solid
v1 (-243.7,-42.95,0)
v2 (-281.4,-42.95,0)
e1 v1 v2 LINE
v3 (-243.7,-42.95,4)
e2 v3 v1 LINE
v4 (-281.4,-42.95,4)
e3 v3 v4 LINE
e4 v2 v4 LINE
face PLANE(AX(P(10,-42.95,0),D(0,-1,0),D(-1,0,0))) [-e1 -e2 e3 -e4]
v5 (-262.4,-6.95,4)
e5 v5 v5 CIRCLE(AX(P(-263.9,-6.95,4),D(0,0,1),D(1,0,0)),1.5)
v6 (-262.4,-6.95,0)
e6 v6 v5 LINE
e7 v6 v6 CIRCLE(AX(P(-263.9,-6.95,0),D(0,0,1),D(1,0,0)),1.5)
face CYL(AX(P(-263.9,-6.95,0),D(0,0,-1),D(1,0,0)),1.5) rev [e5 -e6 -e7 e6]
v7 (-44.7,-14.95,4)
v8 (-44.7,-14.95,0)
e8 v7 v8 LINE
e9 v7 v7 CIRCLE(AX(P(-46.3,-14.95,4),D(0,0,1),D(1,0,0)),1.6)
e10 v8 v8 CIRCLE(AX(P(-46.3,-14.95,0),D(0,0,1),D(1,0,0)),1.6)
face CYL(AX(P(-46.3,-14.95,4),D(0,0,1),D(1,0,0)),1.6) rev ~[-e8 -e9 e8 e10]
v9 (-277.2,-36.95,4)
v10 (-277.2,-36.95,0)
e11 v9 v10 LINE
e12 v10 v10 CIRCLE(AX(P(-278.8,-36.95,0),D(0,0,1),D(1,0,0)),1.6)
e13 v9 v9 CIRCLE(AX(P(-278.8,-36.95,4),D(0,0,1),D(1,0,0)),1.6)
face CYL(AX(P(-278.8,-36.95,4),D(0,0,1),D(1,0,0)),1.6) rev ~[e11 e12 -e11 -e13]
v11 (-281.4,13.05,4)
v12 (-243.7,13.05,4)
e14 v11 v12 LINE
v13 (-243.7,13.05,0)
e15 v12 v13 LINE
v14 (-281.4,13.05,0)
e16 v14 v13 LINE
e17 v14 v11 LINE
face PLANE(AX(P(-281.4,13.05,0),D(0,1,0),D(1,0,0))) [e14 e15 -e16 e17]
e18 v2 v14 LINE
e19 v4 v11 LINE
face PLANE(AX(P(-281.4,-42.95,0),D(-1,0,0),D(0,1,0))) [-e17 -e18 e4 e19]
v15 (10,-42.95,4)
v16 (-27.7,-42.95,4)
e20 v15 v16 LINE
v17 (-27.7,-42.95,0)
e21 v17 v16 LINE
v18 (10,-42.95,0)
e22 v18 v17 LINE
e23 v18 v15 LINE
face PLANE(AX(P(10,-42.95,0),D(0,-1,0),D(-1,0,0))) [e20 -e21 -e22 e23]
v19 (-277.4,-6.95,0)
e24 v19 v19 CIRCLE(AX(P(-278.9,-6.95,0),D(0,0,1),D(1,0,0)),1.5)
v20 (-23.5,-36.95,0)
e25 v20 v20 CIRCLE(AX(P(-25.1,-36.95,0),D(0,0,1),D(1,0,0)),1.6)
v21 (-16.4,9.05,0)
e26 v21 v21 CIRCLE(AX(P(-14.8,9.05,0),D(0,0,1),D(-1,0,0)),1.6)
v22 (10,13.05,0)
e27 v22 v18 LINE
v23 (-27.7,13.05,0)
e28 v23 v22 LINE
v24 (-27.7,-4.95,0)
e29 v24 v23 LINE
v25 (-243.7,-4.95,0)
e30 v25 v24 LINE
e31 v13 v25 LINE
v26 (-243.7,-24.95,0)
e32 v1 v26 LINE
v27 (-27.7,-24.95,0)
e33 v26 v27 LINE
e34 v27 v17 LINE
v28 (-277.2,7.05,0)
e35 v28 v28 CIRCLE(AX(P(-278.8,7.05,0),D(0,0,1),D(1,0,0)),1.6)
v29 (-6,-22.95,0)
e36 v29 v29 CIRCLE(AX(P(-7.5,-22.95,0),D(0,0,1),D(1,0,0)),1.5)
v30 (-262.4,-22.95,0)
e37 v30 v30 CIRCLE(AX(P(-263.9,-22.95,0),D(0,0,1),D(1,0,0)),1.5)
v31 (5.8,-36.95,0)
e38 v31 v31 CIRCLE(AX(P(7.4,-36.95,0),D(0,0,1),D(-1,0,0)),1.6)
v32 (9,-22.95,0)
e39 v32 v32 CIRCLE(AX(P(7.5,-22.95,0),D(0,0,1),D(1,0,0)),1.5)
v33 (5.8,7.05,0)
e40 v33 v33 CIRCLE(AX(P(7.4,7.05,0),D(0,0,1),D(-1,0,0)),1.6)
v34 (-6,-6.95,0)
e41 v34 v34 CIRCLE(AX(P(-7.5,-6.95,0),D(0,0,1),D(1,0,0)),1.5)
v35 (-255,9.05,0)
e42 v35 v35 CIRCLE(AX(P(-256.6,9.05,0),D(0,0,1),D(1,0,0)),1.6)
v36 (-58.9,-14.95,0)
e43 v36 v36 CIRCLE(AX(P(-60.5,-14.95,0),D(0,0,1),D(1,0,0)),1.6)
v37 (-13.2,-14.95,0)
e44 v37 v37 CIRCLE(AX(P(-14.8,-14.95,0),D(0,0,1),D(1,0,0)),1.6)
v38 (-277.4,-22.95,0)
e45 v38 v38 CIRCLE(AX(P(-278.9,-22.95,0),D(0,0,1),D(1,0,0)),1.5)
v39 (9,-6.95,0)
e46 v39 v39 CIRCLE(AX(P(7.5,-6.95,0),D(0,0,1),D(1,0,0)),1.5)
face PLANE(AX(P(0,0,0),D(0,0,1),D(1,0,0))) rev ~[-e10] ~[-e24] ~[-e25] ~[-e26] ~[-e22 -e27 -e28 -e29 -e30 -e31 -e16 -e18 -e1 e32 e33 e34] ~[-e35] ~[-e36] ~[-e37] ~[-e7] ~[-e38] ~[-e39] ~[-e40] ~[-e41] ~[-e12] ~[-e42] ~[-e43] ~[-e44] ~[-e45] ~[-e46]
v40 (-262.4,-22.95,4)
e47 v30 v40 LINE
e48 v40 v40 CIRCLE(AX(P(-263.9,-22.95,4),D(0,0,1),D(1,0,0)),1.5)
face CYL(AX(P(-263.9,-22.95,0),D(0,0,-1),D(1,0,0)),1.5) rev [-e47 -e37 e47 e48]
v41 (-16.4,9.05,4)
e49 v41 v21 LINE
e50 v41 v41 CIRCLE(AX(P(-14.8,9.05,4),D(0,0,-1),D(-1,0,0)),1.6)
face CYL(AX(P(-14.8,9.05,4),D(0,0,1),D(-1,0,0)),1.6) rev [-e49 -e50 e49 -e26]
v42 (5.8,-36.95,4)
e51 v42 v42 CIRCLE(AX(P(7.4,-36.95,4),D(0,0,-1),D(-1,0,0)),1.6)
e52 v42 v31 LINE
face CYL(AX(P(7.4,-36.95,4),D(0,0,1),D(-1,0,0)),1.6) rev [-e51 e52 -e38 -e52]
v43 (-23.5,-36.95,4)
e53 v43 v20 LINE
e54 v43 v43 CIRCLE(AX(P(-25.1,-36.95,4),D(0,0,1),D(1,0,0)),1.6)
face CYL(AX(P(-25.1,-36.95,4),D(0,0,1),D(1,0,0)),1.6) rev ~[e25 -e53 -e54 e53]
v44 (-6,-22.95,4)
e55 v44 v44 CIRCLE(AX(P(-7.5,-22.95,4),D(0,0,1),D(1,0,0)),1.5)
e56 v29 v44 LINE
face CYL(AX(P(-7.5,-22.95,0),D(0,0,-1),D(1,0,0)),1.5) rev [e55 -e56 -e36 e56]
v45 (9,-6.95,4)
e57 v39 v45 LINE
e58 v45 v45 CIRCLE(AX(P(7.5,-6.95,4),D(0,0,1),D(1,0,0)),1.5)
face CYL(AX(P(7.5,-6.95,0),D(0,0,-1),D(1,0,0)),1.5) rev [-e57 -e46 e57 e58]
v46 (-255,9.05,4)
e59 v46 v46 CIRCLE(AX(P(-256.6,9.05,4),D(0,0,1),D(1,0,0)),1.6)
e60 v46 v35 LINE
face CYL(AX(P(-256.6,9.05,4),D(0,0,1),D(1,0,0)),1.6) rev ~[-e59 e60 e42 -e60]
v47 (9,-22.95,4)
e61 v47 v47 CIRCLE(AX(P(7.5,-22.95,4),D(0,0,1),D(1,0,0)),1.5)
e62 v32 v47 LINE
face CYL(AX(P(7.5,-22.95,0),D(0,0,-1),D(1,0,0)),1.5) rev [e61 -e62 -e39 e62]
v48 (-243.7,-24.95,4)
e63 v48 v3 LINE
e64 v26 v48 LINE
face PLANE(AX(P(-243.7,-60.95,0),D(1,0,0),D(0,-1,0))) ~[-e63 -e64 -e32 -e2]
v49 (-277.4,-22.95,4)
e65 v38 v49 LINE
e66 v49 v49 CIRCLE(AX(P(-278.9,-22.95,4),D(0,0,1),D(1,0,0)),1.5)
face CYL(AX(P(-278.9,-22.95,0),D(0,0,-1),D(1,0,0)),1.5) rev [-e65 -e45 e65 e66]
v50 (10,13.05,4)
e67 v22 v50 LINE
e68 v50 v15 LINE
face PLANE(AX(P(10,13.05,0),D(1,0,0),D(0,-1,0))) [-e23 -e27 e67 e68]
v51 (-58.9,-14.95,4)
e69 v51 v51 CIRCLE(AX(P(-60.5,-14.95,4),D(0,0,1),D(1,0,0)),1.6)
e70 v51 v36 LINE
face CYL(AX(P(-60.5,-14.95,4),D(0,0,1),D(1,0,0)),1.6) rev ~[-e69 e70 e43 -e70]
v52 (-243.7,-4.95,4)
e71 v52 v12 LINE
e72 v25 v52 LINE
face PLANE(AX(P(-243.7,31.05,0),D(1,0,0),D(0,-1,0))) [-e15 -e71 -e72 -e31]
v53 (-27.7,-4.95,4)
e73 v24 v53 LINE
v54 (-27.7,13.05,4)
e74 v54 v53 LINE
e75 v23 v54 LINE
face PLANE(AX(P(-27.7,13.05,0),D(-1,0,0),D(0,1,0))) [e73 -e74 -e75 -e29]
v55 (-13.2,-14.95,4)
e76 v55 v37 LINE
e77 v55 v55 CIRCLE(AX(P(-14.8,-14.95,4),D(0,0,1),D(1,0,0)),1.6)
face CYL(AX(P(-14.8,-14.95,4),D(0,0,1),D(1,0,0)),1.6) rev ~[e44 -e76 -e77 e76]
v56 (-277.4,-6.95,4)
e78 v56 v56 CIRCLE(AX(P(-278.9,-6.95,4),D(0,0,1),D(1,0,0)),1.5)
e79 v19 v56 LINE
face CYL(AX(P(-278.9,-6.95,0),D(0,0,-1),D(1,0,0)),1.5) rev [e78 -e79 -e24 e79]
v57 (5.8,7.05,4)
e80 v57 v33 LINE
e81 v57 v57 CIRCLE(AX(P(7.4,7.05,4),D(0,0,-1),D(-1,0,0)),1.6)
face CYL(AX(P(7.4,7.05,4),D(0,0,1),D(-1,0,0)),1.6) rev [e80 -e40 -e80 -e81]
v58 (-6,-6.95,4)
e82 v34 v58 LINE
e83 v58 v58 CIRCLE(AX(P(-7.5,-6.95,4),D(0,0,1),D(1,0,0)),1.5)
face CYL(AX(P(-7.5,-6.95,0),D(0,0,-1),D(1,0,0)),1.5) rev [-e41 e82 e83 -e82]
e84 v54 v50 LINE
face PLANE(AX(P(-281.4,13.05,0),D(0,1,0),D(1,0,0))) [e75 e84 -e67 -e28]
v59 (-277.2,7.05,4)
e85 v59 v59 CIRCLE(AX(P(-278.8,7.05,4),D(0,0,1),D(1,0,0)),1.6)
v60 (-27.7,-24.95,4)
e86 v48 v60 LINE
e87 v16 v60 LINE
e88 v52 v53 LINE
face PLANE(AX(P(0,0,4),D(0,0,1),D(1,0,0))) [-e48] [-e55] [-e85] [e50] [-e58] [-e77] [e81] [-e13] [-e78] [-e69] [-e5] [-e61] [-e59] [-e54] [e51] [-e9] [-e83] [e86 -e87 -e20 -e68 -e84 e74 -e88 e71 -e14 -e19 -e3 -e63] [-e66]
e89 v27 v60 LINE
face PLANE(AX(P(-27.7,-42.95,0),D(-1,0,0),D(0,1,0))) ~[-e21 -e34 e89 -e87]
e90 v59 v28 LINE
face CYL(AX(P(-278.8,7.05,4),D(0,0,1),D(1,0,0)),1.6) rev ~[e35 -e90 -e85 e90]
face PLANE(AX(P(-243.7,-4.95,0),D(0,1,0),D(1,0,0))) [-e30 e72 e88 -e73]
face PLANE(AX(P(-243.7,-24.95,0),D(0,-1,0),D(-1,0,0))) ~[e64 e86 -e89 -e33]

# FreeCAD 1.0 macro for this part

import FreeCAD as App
import Part
import Sketcher
from FreeCAD import Vector
Q = App.Units.Quantity


def add_polygon(sketch, points):
    """Adds a closed chain of lines whose ends are joined by coincident constraints."""
    first, n = sketch.GeometryCount, len(points)
    for a, b in zip(points, points[1:] + points[:1]):
        sketch.addGeometry(Part.LineSegment(App.Vector(*a, 0), App.Vector(*b, 0)), False)
    for i in range(n):
        sketch.addConstraint(Sketcher.Constraint("Coincident", first + i, 2, first + (i + 1) % n, 1))

doc = App.newDocument("Part")
body = doc.addObject("PartDesign::Body", "Body")

# Sketch on XY plane
sketch1 = doc.addObject("Sketcher::SketchObject", "Sketch")
body.addObject(sketch1)
sketch1.AttachmentSupport = (doc.XY_Plane, [""])
sketch1.MapMode = "FlatFace"
add_polygon(sketch1, [(10, 13.05), (-281.4, 13.05), (-281.4, -42.95), (10, -42.95)])  # lines 0-3
sketch1.addGeometry(Part.Circle(Vector(-278.9, -22.95, 0), Vector(0, 0, 1), 1.5), False)  # 4
sketch1.addGeometry(Part.Circle(Vector(-263.9, -22.95, 0), Vector(0, 0, 1), 1.5), False)  # 5
sketch1.addGeometry(Part.Circle(Vector(-7.5, -22.95, 0), Vector(0, 0, 1), 1.5), False)  # 6
sketch1.addGeometry(Part.Circle(Vector(7.5, -22.95, 0), Vector(0, 0, 1), 1.5), False)  # 7
sketch1.addGeometry(Part.Circle(Vector(-278.9, -6.95, 0), Vector(0, 0, 1), 1.5), False)  # 8
sketch1.addGeometry(Part.Circle(Vector(-263.9, -6.95, 0), Vector(0, 0, 1), 1.5), False)  # 9
sketch1.addGeometry(Part.Circle(Vector(-7.5, -6.95, 0), Vector(0, 0, 1), 1.5), False)  # 10
sketch1.addGeometry(Part.Circle(Vector(7.5, -6.95, 0), Vector(0, 0, 1), 1.5), False)  # 11
sketch1.addConstraint([
    Sketcher.Constraint("Horizontal", 0),
    Sketcher.Constraint("Vertical", 1),
    Sketcher.Constraint("Horizontal", 2),
    Sketcher.Constraint("Vertical", 3),
    Sketcher.Constraint("Equal", 4, 5),
    Sketcher.Constraint("Equal", 5, 6),
    Sketcher.Constraint("Equal", 6, 7),
    Sketcher.Constraint("Equal", 7, 8),
    Sketcher.Constraint("Equal", 8, 9),
    Sketcher.Constraint("Equal", 9, 10),
    Sketcher.Constraint("Equal", 10, 11),
    Sketcher.Constraint("Symmetric", 6, 3, 7, 3, -2),
    Sketcher.Constraint("Symmetric", 10, 3, 11, 3, -2),
    Sketcher.Constraint("Horizontal", 4, 3, 5, 3),
    Sketcher.Constraint("Horizontal", 5, 3, 6, 3),
    Sketcher.Constraint("Horizontal", 8, 3, 9, 3),
    Sketcher.Constraint("Horizontal", 9, 3, 10, 3),
    Sketcher.Constraint("Vertical", 4, 3, 8, 3),
    Sketcher.Constraint("Vertical", 5, 3, 9, 3),
    Sketcher.Constraint("Vertical", 6, 3, 10, 3),
    Sketcher.Constraint("Diameter", 4, Q("3 mm")),
    Sketcher.Constraint("DistanceX", 0, 2, 0, 1, Q("291.4 mm")),
    Sketcher.Constraint("DistanceY", 8, 3, 0, 2, Q("20 mm")),
    Sketcher.Constraint("DistanceY", 1, 2, 4, 3, Q("20 mm")),
    Sketcher.Constraint("DistanceX", 0, 2, 8, 3, Q("2.5 mm")),
    Sketcher.Constraint("DistanceX", 7, 3, 2, 2, Q("2.5 mm")),
    Sketcher.Constraint("DistanceY", 1, 2, 1, 1, Q("56 mm")),
    Sketcher.Constraint("DistanceX", -1, 1, 2, 2, Q("10 mm")),
    Sketcher.Constraint("DistanceX", 4, 3, 5, 3, Q("15 mm")),
    Sketcher.Constraint("DistanceY", 4, 3, -1, 1, Q("22.95 mm")),
])
pad1 = doc.addObject("PartDesign::Pad", "Pad")
body.addObject(pad1)
pad1.Profile = sketch1
pad1.Length = 4

# Sketch on XY plane
sketch2 = doc.addObject("Sketcher::SketchObject", "Sketch001")
body.addObject(sketch2)
sketch2.AttachmentSupport = (doc.XY_Plane, [""])
sketch2.MapMode = "FlatFace"
add_polygon(sketch2, [(-243.7, 31.05), (-27.7, 31.05), (-27.7, -4.95), (-243.7, -4.95)])  # lines 0-3
sketch2.addConstraint([
    Sketcher.Constraint("Horizontal", 0),
    Sketcher.Constraint("Vertical", 1),
    Sketcher.Constraint("Horizontal", 2),
    Sketcher.Constraint("Vertical", 3),
    Sketcher.Constraint("DistanceX", 0, 1, 0, 2, Q("216 mm")),
    Sketcher.Constraint("DistanceY", 1, 2, 1, 1, Q("36 mm")),
    Sketcher.Constraint("DistanceX", 0, 2, -1, 1, Q("27.7 mm")),
    Sketcher.Constraint("DistanceY", -1, 1, 0, 2, Q("31.05 mm")),
])
pocket1 = doc.addObject("PartDesign::Pocket", "Pocket")
body.addObject(pocket1)
pocket1.Profile = sketch2
pocket1.Length = 4
pocket1.Reversed = True
doc.recompute()

datumplane = doc.addObject("PartDesign::Plane", "DatumPlane")
body.addObject(datumplane)
datumplane.AttachmentSupport = (doc.XZ_Plane, [""])
datumplane.MapMode = "FlatFace"
datumplane.AttachmentOffset = App.Placement(Vector(0, 0, 14.95), App.Rotation())
mirrored = doc.addObject("PartDesign::Mirrored", "Mirrored")
body.addObject(mirrored)
mirrored.Originals = [pocket1]
mirrored.MirrorPlane = (datumplane, [""])
body.Tip = mirrored

# Sketch on XY plane
sketch3 = doc.addObject("Sketcher::SketchObject", "Sketch002")
body.addObject(sketch3)
sketch3.AttachmentSupport = (doc.XY_Plane, [""])
sketch3.MapMode = "FlatFace"
sketch3.AttachmentOffset = App.Placement(Vector(0, 0, 4), App.Rotation())
sketch3.addGeometry([
    Part.Circle(Vector(-278.8, -36.95, 0), Vector(0, 0, 1), 1.6),
    Part.Circle(Vector(-278.8, 7.05, 0), Vector(0, 0, 1), 1.6),
], False)
sketch3.addConstraint([
    Sketcher.Constraint("Equal", 0, 1),
    Sketcher.Constraint("Vertical", 0, 3, 1, 3),
    Sketcher.Constraint("Diameter", 0, Q("3.2 mm")),
    Sketcher.Constraint("DistanceY", 0, 3, 1, 3, Q("44 mm")),
    Sketcher.Constraint("DistanceX", 0, 3, -1, 1, Q("278.8 mm")),
    Sketcher.Constraint("DistanceY", 0, 3, -1, 1, Q("36.95 mm")),
])
pocket2 = doc.addObject("PartDesign::Pocket", "Pocket001")
body.addObject(pocket2)
pocket2.Profile = sketch3
pocket2.Length = 10
doc.recompute()

datumplane2 = doc.addObject("PartDesign::Plane", "DatumPlane001")
body.addObject(datumplane2)
datumplane2.AttachmentSupport = (doc.YZ_Plane, [""])
datumplane2.MapMode = "FlatFace"
datumplane2.AttachmentOffset = App.Placement(Vector(0, 0, -135.7), App.Rotation())
mirrored2 = doc.addObject("PartDesign::Mirrored", "Mirrored001")
body.addObject(mirrored2)
mirrored2.Originals = [pocket2]
mirrored2.MirrorPlane = (datumplane2, [""])
body.Tip = mirrored2

# Sketch on XY plane
sketch4 = doc.addObject("Sketcher::SketchObject", "Sketch003")
body.addObject(sketch4)
sketch4.AttachmentSupport = (doc.XY_Plane, [""])
sketch4.MapMode = "FlatFace"
sketch4.AttachmentOffset = App.Placement(Vector(0, 0, 4), App.Rotation())
sketch4.addGeometry([
    Part.Circle(Vector(7.4, -36.95, 0), Vector(0, 0, 1), 1.6),
    Part.Circle(Vector(-25.1, -36.95, 0), Vector(0, 0, 1), 1.6),
], False)
sketch4.addConstraint([
    Sketcher.Constraint("Equal", 0, 1),
    Sketcher.Constraint("Horizontal", 0, 3, 1, 3),
    Sketcher.Constraint("Diameter", 0, Q("3.2 mm")),
    Sketcher.Constraint("DistanceX", 1, 3, 0, 3, Q("32.5 mm")),
    Sketcher.Constraint("DistanceX", -1, 1, 0, 3, Q("7.4 mm")),
    Sketcher.Constraint("DistanceY", 0, 3, -1, 1, Q("36.95 mm")),
])
pocket3 = doc.addObject("PartDesign::Pocket", "Pocket002")
body.addObject(pocket3)
pocket3.Profile = sketch4
pocket3.Length = 10

# Sketch on XY plane
sketch5 = doc.addObject("Sketcher::SketchObject", "Sketch004")
body.addObject(sketch5)
sketch5.AttachmentSupport = (doc.XY_Plane, [""])
sketch5.MapMode = "FlatFace"
sketch5.AttachmentOffset = App.Placement(Vector(0, 0, 4), App.Rotation())
sketch5.addGeometry(Part.Circle(Vector(-256.6, 9.05, 0), Vector(0, 0, 1), 1.6), False)
sketch5.addConstraint([
    Sketcher.Constraint("Diameter", 0, Q("3.2 mm")),
    Sketcher.Constraint("DistanceX", 0, 3, -1, 1, Q("256.6 mm")),
    Sketcher.Constraint("DistanceY", -1, 1, 0, 3, Q("9.05 mm")),
])
pocket4 = doc.addObject("PartDesign::Pocket", "Pocket003")
body.addObject(pocket4)
pocket4.Profile = sketch5
pocket4.Length = 10
doc.recompute()

datumplane3 = doc.addObject("PartDesign::Plane", "DatumPlane002")
body.addObject(datumplane3)
datumplane3.AttachmentSupport = (doc.YZ_Plane, [""])
datumplane3.MapMode = "FlatFace"
datumplane3.AttachmentOffset = App.Placement(Vector(0, 0, -135.7), App.Rotation())
mirrored3 = doc.addObject("PartDesign::Mirrored", "Mirrored002")
body.addObject(mirrored3)
mirrored3.Originals = [pocket4]
mirrored3.MirrorPlane = (datumplane3, [""])
body.Tip = mirrored3

# Sketch on XY plane
sketch6 = doc.addObject("Sketcher::SketchObject", "Sketch005")
body.addObject(sketch6)
sketch6.AttachmentSupport = (doc.XY_Plane, [""])
sketch6.MapMode = "FlatFace"
sketch6.AttachmentOffset = App.Placement(Vector(0, 0, 4), App.Rotation())
sketch6.addGeometry([
    Part.Circle(Vector(-14.8, -14.95, 0), Vector(0, 0, 1), 1.6),
    Part.Circle(Vector(-60.5, -14.95, 0), Vector(0, 0, 1), 1.6),
    Part.Circle(Vector(-46.3, -14.95, 0), Vector(0, 0, 1), 1.6),
], False)
sketch6.addConstraint([
    Sketcher.Constraint("Equal", 0, 1),
    Sketcher.Constraint("Equal", 1, 2),
    Sketcher.Constraint("Horizontal", 0, 3, 1, 3),
    Sketcher.Constraint("Horizontal", 1, 3, 2, 3),
    Sketcher.Constraint("Diameter", 0, Q("3.2 mm")),
    Sketcher.Constraint("DistanceX", 1, 3, 0, 3, Q("45.7 mm")),
    Sketcher.Constraint("DistanceX", 0, 3, -1, 1, Q("14.8 mm")),
    Sketcher.Constraint("DistanceX", 2, 3, -1, 1, Q("46.3 mm")),
    Sketcher.Constraint("DistanceY", 0, 3, -1, 1, Q("14.95 mm")),
])
pocket5 = doc.addObject("PartDesign::Pocket", "Pocket004")
body.addObject(pocket5)
pocket5.Profile = sketch6
pocket5.Length = 10

doc.recompute()
